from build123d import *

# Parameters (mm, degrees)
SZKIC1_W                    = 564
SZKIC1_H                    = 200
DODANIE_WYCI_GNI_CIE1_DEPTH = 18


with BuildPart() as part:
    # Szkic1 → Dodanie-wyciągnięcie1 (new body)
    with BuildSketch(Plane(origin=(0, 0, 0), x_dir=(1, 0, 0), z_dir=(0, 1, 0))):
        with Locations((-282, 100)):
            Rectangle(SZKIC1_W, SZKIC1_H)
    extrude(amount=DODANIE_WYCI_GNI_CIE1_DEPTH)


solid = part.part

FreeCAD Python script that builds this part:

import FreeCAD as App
import Part
import Sketcher
from FreeCAD import Vector
Q = App.Units.Quantity


def add_polygon(sketch, points):
    """Adds a closed chain of lines whose ends are joined by coincident constraints."""
    first, n = sketch.GeometryCount, len(points)
    for a, b in zip(points, points[1:] + points[:1]):
        sketch.addGeometry(Part.LineSegment(App.Vector(*a, 0), App.Vector(*b, 0)), False)
    for i in range(n):
        sketch.addConstraint(Sketcher.Constraint("Coincident", first + i, 2, first + (i + 1) % n, 1))

doc = App.newDocument("Part")
body = doc.addObject("PartDesign::Body", "Body")

# Sketch on XZ plane
sketch1 = body.newObject("Sketcher::SketchObject", "Sketch")
sketch1.AttachmentSupport = (doc.getObject("XZ_Plane"), [""])
sketch1.MapMode = "FlatFace"
add_polygon(sketch1, [(-564, -200), (-564, 0), (0, 0), (0, -200)])  # lines 0-3
sketch1.addConstraint(Sketcher.Constraint("Vertical", 0))
sketch1.addConstraint(Sketcher.Constraint("Horizontal", 1))
sketch1.addConstraint(Sketcher.Constraint("Vertical", 2))
sketch1.addConstraint(Sketcher.Constraint("Horizontal", 3))
sketch1.addConstraint(Sketcher.Constraint("Coincident", 1, 2, -1, 1))
sketch1.addConstraint(Sketcher.Constraint("DistanceX", 1, 1, 1, 2, Q("564 mm")))
sketch1.addConstraint(Sketcher.Constraint("DistanceY", 0, 1, 0, 2, Q("200 mm")))
pad1 = body.newObject("PartDesign::Pad", "Pad")
pad1.Profile = sketch1
pad1.Length = 18
pad1.Reversed = True

doc.recompute()
